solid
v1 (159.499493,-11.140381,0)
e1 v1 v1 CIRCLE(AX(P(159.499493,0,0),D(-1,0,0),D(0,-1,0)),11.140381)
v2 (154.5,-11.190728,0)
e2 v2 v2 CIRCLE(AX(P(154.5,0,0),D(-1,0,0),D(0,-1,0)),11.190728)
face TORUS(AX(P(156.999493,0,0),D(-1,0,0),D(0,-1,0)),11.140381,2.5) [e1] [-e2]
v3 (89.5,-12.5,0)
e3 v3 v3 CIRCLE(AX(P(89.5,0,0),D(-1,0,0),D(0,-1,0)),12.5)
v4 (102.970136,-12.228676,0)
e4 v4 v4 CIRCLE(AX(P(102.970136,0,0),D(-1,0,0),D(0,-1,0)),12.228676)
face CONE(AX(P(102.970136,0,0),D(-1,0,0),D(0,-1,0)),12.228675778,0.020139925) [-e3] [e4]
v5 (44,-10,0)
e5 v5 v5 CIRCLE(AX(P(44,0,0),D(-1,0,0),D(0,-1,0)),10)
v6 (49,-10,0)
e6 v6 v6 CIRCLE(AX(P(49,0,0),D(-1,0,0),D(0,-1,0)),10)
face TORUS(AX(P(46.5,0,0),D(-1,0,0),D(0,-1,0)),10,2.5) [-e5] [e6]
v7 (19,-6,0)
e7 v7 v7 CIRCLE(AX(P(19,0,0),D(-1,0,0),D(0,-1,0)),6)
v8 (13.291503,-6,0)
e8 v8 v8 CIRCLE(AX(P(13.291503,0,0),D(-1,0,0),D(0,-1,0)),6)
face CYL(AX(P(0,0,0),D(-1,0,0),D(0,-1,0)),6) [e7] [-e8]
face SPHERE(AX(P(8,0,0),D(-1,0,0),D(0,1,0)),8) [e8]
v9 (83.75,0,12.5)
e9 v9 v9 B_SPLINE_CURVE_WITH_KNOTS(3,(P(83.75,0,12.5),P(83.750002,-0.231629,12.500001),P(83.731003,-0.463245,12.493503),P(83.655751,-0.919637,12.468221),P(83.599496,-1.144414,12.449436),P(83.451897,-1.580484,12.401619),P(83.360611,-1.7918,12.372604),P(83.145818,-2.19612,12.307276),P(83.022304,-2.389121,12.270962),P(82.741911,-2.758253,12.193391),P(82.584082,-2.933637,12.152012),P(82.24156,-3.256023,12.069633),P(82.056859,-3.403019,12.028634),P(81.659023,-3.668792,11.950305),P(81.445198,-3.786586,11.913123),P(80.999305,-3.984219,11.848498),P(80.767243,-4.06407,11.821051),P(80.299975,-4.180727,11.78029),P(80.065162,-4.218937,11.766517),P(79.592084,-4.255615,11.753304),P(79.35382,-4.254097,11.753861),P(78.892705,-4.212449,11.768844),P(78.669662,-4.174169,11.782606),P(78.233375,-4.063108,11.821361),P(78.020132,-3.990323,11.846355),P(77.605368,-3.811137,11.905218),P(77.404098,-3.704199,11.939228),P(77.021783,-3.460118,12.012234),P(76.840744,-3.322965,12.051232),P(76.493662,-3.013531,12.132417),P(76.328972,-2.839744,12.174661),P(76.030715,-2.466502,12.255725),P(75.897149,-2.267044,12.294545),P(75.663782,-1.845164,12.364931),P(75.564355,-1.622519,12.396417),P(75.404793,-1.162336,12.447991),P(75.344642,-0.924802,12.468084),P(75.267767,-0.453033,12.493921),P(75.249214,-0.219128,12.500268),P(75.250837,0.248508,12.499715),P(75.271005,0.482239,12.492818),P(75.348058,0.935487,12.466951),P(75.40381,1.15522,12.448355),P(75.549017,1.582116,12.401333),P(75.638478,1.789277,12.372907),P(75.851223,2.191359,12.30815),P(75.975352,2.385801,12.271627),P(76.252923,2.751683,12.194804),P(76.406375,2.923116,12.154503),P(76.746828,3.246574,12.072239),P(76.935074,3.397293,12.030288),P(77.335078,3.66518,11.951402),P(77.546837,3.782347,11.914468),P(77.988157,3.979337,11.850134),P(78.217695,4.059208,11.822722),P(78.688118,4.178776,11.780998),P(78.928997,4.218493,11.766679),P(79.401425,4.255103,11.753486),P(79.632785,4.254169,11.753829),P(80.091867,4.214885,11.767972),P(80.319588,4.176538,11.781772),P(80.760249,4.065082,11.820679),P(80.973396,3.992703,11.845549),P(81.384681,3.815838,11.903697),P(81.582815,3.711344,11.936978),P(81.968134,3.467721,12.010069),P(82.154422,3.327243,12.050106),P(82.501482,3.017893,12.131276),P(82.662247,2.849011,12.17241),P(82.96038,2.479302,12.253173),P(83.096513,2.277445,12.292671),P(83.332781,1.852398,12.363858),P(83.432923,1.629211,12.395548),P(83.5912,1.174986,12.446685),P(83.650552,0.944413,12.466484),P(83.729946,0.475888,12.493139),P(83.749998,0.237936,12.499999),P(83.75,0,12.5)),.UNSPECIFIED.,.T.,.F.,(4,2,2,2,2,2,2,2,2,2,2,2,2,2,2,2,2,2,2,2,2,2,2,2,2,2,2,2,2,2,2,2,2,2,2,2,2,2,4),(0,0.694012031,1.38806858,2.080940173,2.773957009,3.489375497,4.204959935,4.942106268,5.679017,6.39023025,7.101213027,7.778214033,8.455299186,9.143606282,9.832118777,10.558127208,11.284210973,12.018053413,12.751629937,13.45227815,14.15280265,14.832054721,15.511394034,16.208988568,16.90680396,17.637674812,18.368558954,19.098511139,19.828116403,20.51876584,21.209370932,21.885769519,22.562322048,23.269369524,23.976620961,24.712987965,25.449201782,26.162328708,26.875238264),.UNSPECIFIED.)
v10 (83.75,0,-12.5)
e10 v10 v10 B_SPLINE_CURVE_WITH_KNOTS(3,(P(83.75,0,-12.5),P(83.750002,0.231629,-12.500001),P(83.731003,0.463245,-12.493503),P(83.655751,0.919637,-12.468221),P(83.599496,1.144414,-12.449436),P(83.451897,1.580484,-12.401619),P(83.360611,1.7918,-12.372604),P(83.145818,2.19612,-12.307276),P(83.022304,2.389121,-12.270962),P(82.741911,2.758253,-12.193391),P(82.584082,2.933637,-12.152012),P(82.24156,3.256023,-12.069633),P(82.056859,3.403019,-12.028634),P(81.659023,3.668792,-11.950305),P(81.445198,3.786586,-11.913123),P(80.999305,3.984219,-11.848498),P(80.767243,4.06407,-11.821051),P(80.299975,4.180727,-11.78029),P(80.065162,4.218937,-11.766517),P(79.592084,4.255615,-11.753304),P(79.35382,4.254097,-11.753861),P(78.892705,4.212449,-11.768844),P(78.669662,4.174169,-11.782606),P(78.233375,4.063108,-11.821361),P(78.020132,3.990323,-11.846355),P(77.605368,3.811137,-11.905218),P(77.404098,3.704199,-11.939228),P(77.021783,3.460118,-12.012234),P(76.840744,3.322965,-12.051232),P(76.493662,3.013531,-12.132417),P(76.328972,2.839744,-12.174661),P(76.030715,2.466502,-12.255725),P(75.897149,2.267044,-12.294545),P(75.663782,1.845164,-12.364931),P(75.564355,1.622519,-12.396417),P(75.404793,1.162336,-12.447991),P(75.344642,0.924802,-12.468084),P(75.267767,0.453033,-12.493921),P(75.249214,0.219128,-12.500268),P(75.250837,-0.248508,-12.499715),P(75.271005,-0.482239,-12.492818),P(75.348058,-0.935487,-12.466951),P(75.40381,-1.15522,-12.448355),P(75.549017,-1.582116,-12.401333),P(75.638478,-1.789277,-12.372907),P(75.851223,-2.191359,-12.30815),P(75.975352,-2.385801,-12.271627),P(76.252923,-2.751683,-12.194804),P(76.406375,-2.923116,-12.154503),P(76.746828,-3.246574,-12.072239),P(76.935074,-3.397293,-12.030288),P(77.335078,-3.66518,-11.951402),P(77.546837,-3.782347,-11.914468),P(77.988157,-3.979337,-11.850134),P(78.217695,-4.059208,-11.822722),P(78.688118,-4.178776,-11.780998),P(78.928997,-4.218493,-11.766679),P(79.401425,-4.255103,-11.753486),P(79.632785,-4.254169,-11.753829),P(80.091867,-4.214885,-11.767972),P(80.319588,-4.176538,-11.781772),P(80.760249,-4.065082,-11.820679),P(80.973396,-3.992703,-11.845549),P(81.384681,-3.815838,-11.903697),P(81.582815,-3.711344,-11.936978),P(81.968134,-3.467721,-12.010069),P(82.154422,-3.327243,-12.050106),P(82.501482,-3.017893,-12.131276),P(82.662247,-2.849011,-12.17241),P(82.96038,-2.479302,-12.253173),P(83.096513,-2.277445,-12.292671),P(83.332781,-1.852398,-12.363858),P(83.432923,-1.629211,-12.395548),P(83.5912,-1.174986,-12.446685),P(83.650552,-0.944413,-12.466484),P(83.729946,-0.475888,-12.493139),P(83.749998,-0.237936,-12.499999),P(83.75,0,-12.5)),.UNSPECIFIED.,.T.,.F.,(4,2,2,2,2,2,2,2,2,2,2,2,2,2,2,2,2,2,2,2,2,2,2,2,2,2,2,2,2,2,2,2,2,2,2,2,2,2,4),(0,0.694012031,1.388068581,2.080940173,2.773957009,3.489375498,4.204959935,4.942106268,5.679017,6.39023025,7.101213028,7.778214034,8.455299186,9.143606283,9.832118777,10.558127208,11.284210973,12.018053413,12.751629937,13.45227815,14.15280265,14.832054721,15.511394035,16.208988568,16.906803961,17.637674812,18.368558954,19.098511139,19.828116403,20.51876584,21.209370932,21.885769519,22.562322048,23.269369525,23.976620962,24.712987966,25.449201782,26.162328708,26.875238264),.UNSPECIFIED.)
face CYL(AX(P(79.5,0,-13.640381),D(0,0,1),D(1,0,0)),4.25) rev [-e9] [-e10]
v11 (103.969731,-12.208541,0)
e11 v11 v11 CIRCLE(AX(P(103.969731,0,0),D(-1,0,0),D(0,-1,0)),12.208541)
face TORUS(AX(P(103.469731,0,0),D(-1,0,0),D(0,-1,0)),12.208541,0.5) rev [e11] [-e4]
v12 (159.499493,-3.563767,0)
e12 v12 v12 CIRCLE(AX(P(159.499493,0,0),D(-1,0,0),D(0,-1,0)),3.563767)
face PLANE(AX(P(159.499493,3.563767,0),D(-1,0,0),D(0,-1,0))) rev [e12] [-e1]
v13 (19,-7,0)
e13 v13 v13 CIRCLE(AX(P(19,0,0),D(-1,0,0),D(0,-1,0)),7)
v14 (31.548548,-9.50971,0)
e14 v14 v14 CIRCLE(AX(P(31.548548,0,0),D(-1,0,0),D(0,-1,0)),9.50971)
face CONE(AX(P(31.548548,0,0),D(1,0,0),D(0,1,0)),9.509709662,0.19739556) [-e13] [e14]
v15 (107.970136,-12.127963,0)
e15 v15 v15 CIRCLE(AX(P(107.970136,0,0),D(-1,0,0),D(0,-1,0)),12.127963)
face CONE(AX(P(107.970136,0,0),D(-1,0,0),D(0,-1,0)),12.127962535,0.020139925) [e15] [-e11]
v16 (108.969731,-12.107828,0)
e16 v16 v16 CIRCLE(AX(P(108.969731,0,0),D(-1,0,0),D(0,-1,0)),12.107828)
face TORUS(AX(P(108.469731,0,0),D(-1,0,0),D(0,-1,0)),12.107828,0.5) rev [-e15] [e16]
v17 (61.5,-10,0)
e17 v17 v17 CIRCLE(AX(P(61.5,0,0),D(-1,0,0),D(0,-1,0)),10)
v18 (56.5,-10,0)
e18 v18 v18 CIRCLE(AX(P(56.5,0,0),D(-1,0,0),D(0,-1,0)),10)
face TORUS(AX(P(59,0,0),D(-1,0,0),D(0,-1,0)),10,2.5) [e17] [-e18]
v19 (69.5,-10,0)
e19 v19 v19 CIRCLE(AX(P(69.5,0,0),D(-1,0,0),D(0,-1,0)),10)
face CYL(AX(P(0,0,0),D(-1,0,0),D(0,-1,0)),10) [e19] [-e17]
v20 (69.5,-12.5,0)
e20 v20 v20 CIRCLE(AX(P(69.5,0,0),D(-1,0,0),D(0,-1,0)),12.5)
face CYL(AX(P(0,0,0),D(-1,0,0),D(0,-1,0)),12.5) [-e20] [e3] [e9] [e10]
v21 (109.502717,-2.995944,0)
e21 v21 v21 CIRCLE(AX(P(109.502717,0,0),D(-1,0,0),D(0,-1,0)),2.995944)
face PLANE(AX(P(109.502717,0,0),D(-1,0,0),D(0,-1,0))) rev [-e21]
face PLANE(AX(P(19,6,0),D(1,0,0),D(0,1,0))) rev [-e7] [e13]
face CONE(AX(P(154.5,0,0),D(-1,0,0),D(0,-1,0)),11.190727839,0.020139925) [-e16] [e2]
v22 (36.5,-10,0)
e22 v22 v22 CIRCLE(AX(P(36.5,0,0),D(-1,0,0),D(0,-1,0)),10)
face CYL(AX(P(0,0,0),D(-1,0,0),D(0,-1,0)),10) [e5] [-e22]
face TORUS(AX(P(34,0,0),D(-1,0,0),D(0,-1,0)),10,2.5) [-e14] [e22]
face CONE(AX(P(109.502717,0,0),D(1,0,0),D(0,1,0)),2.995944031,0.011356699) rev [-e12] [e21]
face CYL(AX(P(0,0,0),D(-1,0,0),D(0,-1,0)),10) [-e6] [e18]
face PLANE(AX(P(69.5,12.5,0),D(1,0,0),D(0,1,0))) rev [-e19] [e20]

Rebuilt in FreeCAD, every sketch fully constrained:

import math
import FreeCAD as App
import Part
import Sketcher
from FreeCAD import Vector

doc = App.newDocument("Part")
body = doc.addObject("PartDesign::Body", "Body")

# Sketch on XY plane
sketch1 = body.newObject("Sketcher::SketchObject", "Sketch")
sketch1.AttachmentSupport = (doc.getObject("XY_Plane"), [""])
sketch1.MapMode = "FlatFace"
sketch1.addGeometry([
    Part.LineSegment(Vector(0, 0, 0), Vector(109.5, 0, 0)),  # 0
    Part.LineSegment(Vector(109.5, 0, 0), Vector(109.5, 3, 0)),  # 1
    Part.LineSegment(Vector(109.5, 3, 0), Vector(159.5, 3.6, 0)),  # 2
    Part.LineSegment(Vector(159.5, 3.6, 0), Vector(159.5, 11.1, 0)),  # 3
    Part.ArcOfCircle(Part.Circle(Vector(157, 11.1, 0), Vector(0, 0, 1), 2.5), math.radians(0), math.radians(179)),  # 4
    Part.LineSegment(Vector(154.5, 11.2, 0), Vector(109, 12.1, 0)),  # 5
    Part.ArcOfCircle(Part.Circle(Vector(108.5, 12.1, 0), Vector(0, 0, 1), 0.5), math.radians(178), math.radians(360)),  # 6
    Part.LineSegment(Vector(108, 12.1, 0), Vector(104, 12.2, 0)),  # 7
    Part.ArcOfCircle(Part.Circle(Vector(103.5, 12.2, 0), Vector(0, 0, 1), 0.5), math.radians(178), math.radians(360)),  # 8
    Part.LineSegment(Vector(103, 12.2, 0), Vector(89.5, 12.5, 0)),  # 9
    Part.LineSegment(Vector(89.5, 12.5, 0), Vector(69.5, 12.5, 0)),  # 10
    Part.LineSegment(Vector(69.5, 12.5, 0), Vector(69.5, 10, 0)),  # 11
    Part.LineSegment(Vector(69.5, 10, 0), Vector(61.5, 10, 0)),  # 12
    Part.ArcOfCircle(Part.Circle(Vector(59, 10, 0), Vector(0, 0, 1), 2.5), math.radians(0), math.radians(180)),  # 13
    Part.LineSegment(Vector(56.5, 10, 0), Vector(49, 10, 0)),  # 14
    Part.ArcOfCircle(Part.Circle(Vector(46.5, 10, 0), Vector(0, 0, 1), 2.5), math.radians(0), math.radians(180)),  # 15
    Part.LineSegment(Vector(44, 10, 0), Vector(36.5, 10, 0)),  # 16
    Part.ArcOfCircle(Part.Circle(Vector(34, 10, 0), Vector(0, 0, 1), 2.5), math.radians(0), math.radians(191)),  # 17
    Part.LineSegment(Vector(31.5, 9.5, 0), Vector(19, 7, 0)),  # 18
    Part.LineSegment(Vector(19, 7, 0), Vector(19, 6, 0)),  # 19
    Part.LineSegment(Vector(19, 6, 0), Vector(13.3, 6, 0)),  # 20
    Part.ArcOfCircle(Part.Circle(Vector(8, 0, 0), Vector(0, 0, 1), 8), math.radians(49), math.radians(180)),  # 21
], False)
sketch1.addConstraint([
    Sketcher.Constraint("Coincident", 0, 2, 1, 1),
    Sketcher.Constraint("Coincident", 1, 2, 2, 1),
    Sketcher.Constraint("Coincident", 2, 2, 3, 1),
    Sketcher.Constraint("Tangent", 3, 2, 4, 1),
    Sketcher.Constraint("Coincident", 4, 2, 5, 1),
    Sketcher.Constraint("Coincident", 5, 2, 6, 2),
    Sketcher.Constraint("Coincident", 6, 1, 7, 1),
    Sketcher.Constraint("Coincident", 7, 2, 8, 2),
    Sketcher.Constraint("Coincident", 8, 1, 9, 1),
    Sketcher.Constraint("Coincident", 9, 2, 10, 1),
    Sketcher.Constraint("Coincident", 10, 2, 11, 1),
    Sketcher.Constraint("Coincident", 11, 2, 12, 1),
    Sketcher.Constraint("Coincident", 12, 2, 13, 1),
    Sketcher.Constraint("Coincident", 13, 2, 14, 1),
    Sketcher.Constraint("Coincident", 14, 2, 15, 1),
    Sketcher.Constraint("Coincident", 15, 2, 16, 1),
    Sketcher.Constraint("Coincident", 16, 2, 17, 1),
    Sketcher.Constraint("Coincident", 17, 2, 18, 1),
    Sketcher.Constraint("Coincident", 18, 2, 19, 1),
    Sketcher.Constraint("Coincident", 19, 2, 20, 1),
    Sketcher.Constraint("Coincident", 20, 2, 21, 1),
    Sketcher.Constraint("Coincident", 21, 2, 0, 1),
    Sketcher.Constraint("Horizontal", 0),
    Sketcher.Constraint("Vertical", 1),
    Sketcher.Constraint("Vertical", 3),
    Sketcher.Constraint("Horizontal", 10),
    Sketcher.Constraint("Vertical", 11),
    Sketcher.Constraint("Horizontal", 12),
    Sketcher.Constraint("Horizontal", 14),
    Sketcher.Constraint("Horizontal", 16),
    Sketcher.Constraint("Vertical", 19),
    Sketcher.Constraint("Horizontal", 20),
    Sketcher.Constraint("Coincident", 21, 2, -1, 1),
    Sketcher.Constraint("Equal", 6, 8),
    Sketcher.Constraint("Equal", 4, 13),
    Sketcher.Constraint("Equal", 13, 15),
    Sketcher.Constraint("Equal", 15, 17),
    Sketcher.Constraint("PointOnObject", 21, 3, -1),
    Sketcher.Constraint("Parallel", 5, 7),
    Sketcher.Constraint("Parallel", 7, 9),
    Sketcher.Constraint("Horizontal", 13, 3, 15, 3),
    Sketcher.Constraint("Horizontal", 15, 3, 17, 3),
    Sketcher.Constraint("Horizontal", 6, 3, 5, 2),
    Sketcher.Constraint("Horizontal", 8, 3, 7, 2),
    Sketcher.Constraint("Horizontal", 17, 3, 11, 2),
    Sketcher.Constraint("Horizontal", 12, 2, 13, 2),
    Sketcher.Constraint("Horizontal", 14, 2, 15, 2),
    Sketcher.Constraint("Equal", 14, 16),
    Sketcher.Constraint("Radius", 21, 8.0),
    Sketcher.Constraint("Radius", 4, 2.5),
    Sketcher.Constraint("Radius", 6, 0.5),
    Sketcher.Constraint("DistanceX", 10, 2, 10, 1, 20.0),
    Sketcher.Constraint("DistanceX", 12, 2, 12, 1, 8.0),
    Sketcher.Constraint("DistanceY", 19, 2, 19, 1, 1.0),
    Sketcher.Constraint("Distance", 2, 50.0),
    Sketcher.Constraint("DistanceX", 14, 2, 14, 1, 7.5),
    Sketcher.Constraint("DistanceY", 11, 2, 11, 1, 2.5),
    Sketcher.Constraint("DistanceX", -1, 1, 13, 3, 59.0),
    Sketcher.Constraint("DistanceY", -1, 1, 13, 3, 10.0),
    Sketcher.Constraint("DistanceX", -1, 1, 18, 2, 19.0),
    Sketcher.Constraint("DistanceY", -1, 1, 18, 2, 7.0),
    Sketcher.Constraint("DistanceX", 8, 3, 6, 3, 5.0),
    Sketcher.Constraint("DistanceX", 8, 1, 6, 1, 5.0),
    Sketcher.Constraint("DistanceX", -1, 1, 4, 2, 154.5),
    Sketcher.Constraint("DistanceY", 4, 2, 6, 3, 0.9171),
    Sketcher.Constraint("Distance", 9, 13.472869),
    Sketcher.Constraint("DistanceX", 0, 1, 0, 2, 109.502717),
    Sketcher.Constraint("DistanceY", 1, 1, 1, 2, 2.995944),
    Sketcher.Constraint("DistanceY", 3, 1, 3, 2, 7.576615),
    Sketcher.Constraint("DistanceY", -1, 1, 4, 3, 11.140381),
    Sketcher.Constraint("DistanceX", -1, 1, 17, 2, 31.548548),
])
revolution = body.newObject("PartDesign::Revolution", "Revolution")
revolution.Profile = sketch1
revolution.ReferenceAxis = (sketch1, ["H_Axis"])
revolution.Angle = 360

# Sketch on XY plane
sketch2 = body.newObject("Sketcher::SketchObject", "Sketch001")
sketch2.AttachmentSupport = (doc.getObject("XY_Plane"), [""])
sketch2.MapMode = "FlatFace"
sketch2.addGeometry(Part.Circle(Vector(79.5, 0, 0), Vector(0, 0, 1), 4.2), False)
sketch2.addConstraint([
    Sketcher.Constraint("PointOnObject", 0, 3, -1),
    Sketcher.Constraint("Diameter", 0, 8.5),
    Sketcher.Constraint("DistanceX", -1, 1, 0, 3, 79.5),
])
pocket1 = body.newObject("PartDesign::Pocket", "Pocket")
pocket1.Profile = sketch2
pocket1.Type = "ThroughAll"
pocket1.Midplane = True

doc.recompute()
